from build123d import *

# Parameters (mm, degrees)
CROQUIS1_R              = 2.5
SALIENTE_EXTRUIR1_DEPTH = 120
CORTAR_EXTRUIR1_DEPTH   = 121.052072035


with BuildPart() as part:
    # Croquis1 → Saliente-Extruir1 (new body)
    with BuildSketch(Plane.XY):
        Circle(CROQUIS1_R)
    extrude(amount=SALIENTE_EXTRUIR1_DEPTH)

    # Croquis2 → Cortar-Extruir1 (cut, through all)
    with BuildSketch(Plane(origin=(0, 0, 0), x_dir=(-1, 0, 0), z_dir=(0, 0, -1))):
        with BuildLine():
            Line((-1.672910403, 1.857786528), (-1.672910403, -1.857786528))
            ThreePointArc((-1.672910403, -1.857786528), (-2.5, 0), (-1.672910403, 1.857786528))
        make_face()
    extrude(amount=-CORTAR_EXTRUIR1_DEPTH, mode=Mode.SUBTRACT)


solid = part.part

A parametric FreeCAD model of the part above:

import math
import FreeCAD as App
import Part
import Sketcher

V = App.Vector

doc = App.newDocument("Part")
body = doc.addObject("PartDesign::Body", "Body")

# Sketch on XY plane
sketch1 = doc.addObject("Sketcher::SketchObject", "Sketch")
body.addObject(sketch1)
sketch1.AttachmentSupport = (doc.XY_Plane, [""])
sketch1.MapMode = "FlatFace"
sketch1.addGeometry(Part.Circle(V(0, 0, 0), V(0, 0, 1), 2.5), False)
sketch1.addConstraint(Sketcher.Constraint("Coincident", 0, 3, -1, 1))
sketch1.addConstraint(Sketcher.Constraint("Diameter", 0, 5.0))
pad1 = doc.addObject("PartDesign::Pad", "Pad")
body.addObject(pad1)
pad1.Profile = sketch1
pad1.Length = 120

# Sketch on XY plane
sketch2 = doc.addObject("Sketcher::SketchObject", "Sketch001")
body.addObject(sketch2)
sketch2.AttachmentSupport = (doc.XY_Plane, [""])
sketch2.MapMode = "FlatFace"
sketch2.addGeometry(Part.LineSegment(V(1.67291, -1.857787, 0), V(1.67291, 1.857787, 0)), False)
sketch2.addGeometry(Part.ArcOfCircle(Part.Circle(V(0, 0, 0), V(0, 0, 1), 2.5), math.radians(-47.997413), math.radians(47.997413)), False)
sketch2.addConstraint(Sketcher.Constraint("Coincident", 0, 1, 1, 1))
sketch2.addConstraint(Sketcher.Constraint("Coincident", 1, 2, 0, 2))
sketch2.addConstraint(Sketcher.Constraint("Vertical", 0))
sketch2.addConstraint(Sketcher.Constraint("Coincident", 1, 3, -1, 1))
sketch2.addConstraint(Sketcher.Constraint("Radius", 1, 2.5))
sketch2.addConstraint(Sketcher.Constraint("DistanceY", 0, 1, 0, 2, 3.715573))
pocket1 = doc.addObject("PartDesign::Pocket", "Pocket")
body.addObject(pocket1)
pocket1.Profile = sketch2
pocket1.Type = "ThroughAll"
pocket1.Reversed = True

doc.recompute()
